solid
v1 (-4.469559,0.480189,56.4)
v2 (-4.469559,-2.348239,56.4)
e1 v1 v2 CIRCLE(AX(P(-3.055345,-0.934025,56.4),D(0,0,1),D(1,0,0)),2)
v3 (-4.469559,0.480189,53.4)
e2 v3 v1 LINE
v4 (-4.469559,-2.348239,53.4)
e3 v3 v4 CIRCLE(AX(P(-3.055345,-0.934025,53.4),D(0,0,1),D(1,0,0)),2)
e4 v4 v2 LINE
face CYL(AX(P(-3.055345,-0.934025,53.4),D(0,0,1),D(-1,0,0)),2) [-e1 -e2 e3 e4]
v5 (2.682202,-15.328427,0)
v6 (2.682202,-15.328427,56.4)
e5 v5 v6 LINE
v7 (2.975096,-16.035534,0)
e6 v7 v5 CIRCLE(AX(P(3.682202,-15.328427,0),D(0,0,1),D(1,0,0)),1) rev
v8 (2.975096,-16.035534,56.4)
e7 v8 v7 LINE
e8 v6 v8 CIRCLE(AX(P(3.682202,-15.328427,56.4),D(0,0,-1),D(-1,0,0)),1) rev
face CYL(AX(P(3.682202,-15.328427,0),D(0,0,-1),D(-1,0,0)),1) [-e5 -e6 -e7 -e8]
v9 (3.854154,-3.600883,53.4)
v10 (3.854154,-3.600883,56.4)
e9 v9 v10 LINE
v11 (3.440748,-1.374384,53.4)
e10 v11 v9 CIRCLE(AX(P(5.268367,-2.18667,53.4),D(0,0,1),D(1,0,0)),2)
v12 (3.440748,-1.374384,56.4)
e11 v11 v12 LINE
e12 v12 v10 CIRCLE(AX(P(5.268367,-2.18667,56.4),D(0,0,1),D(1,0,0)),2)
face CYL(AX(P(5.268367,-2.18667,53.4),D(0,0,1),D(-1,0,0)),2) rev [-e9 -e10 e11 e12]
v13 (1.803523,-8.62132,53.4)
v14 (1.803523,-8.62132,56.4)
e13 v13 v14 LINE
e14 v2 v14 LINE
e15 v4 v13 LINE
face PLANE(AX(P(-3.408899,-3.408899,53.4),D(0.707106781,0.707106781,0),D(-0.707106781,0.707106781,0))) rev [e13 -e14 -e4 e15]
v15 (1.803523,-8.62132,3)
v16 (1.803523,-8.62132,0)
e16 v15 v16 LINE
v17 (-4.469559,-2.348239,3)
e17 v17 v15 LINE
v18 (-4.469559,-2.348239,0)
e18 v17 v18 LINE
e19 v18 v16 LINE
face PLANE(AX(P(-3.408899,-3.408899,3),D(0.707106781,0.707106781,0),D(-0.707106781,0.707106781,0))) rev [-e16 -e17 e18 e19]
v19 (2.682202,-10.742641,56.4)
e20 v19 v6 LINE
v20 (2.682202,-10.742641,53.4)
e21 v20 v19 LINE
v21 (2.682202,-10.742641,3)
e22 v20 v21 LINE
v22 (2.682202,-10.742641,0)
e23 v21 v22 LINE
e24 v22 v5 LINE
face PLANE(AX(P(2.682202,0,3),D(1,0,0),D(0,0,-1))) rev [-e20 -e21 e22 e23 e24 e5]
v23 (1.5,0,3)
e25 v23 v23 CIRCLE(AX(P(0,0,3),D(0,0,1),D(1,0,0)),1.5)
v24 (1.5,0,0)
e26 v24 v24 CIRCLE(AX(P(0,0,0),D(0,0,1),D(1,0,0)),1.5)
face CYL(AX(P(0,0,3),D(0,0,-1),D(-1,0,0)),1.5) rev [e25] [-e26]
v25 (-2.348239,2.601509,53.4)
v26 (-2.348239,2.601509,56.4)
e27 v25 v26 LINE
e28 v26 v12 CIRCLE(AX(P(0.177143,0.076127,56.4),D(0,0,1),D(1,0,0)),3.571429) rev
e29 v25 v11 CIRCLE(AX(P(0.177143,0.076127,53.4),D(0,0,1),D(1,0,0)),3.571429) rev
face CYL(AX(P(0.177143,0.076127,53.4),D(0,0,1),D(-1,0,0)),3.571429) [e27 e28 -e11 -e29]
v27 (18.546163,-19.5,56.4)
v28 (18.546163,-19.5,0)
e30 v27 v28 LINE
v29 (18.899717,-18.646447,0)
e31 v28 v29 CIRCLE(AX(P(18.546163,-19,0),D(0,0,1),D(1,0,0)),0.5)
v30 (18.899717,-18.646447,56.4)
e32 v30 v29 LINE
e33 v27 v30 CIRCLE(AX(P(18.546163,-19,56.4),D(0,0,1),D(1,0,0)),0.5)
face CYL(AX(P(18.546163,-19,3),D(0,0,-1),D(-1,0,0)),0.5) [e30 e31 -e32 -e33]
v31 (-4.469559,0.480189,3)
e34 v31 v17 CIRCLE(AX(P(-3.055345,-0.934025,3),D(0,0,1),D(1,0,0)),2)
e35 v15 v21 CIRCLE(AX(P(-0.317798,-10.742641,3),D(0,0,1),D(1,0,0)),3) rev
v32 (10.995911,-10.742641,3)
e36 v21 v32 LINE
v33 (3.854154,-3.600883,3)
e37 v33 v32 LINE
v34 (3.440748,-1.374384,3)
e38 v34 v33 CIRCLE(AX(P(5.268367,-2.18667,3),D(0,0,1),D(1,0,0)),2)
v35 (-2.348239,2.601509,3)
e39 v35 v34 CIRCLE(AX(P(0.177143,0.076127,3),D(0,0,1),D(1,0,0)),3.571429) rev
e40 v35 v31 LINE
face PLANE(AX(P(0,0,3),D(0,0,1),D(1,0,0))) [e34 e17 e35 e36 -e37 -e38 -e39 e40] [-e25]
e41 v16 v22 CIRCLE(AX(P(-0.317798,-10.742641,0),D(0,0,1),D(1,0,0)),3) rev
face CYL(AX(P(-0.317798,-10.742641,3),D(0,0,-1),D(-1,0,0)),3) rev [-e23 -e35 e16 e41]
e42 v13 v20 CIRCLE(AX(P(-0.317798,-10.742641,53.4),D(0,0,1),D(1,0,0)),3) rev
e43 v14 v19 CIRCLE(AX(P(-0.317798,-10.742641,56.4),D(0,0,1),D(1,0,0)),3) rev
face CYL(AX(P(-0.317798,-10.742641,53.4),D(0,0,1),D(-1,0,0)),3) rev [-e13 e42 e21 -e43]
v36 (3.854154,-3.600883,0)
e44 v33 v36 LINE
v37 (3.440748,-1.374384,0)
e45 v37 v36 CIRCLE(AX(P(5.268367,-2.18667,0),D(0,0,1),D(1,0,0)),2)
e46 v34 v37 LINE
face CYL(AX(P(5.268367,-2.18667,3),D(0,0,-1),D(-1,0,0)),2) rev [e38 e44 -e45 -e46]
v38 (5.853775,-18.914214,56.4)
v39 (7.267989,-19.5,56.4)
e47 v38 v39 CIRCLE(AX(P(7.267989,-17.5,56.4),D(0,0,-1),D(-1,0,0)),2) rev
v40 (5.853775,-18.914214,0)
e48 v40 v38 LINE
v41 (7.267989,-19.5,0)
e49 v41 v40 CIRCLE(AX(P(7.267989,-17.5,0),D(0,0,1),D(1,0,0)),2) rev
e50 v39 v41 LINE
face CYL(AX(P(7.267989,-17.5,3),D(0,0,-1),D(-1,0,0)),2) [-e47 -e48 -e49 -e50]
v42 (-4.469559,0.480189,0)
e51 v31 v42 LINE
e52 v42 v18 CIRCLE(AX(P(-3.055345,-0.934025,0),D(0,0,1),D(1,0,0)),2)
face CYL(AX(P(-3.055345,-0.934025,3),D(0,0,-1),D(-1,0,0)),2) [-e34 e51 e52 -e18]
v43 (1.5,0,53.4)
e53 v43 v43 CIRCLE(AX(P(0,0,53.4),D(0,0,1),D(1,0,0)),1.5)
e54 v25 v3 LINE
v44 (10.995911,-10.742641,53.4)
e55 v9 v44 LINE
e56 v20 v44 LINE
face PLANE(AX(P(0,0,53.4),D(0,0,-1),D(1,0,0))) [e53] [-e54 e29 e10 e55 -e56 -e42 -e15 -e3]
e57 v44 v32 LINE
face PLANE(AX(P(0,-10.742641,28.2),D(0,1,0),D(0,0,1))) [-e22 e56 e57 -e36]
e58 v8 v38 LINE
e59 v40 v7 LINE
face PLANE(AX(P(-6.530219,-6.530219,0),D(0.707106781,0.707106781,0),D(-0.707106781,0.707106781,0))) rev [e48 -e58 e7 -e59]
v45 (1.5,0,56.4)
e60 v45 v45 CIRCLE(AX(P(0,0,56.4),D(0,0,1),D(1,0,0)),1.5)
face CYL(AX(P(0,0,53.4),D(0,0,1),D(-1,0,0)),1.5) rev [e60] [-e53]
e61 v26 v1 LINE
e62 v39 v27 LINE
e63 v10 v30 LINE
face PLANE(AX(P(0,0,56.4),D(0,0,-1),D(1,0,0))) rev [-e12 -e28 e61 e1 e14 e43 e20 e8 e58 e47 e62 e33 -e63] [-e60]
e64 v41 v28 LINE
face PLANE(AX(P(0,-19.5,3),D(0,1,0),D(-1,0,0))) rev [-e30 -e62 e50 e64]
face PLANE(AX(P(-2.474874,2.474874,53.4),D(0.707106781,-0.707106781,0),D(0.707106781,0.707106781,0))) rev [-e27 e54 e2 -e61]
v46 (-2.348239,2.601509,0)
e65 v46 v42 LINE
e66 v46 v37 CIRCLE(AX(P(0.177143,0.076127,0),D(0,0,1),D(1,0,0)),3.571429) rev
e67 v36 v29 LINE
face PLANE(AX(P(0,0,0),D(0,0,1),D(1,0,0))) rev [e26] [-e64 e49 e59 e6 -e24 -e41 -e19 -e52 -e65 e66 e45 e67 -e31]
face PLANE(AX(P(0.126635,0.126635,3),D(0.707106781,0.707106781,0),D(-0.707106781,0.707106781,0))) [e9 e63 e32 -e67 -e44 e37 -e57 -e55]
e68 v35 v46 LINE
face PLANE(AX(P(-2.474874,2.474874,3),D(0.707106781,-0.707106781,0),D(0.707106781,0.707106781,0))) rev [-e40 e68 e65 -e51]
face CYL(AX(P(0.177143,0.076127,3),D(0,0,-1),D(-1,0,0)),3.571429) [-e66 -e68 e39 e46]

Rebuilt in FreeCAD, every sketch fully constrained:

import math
import FreeCAD as App
import Part
import Sketcher
Q = App.Units.Quantity


def edges_at(feature, points):
    """Names of the edges that pass closest to the given points."""
    edges = feature.Shape.Edges
    near = lambda p: min(range(len(edges)), key=lambda i: edges[i].distToShape(Part.Vertex(*p))[0])
    return sorted({f"Edge{near(p) + 1}" for p in points})

doc = App.newDocument("Part")
params = doc.addObject("Spreadsheet::Sheet", "Params")
for row, (alias, value) in enumerate([
    ("sketch1_diameter", "3 mm"),
    ("sketch1_radius", "2 mm"),
    ("sketch1_radius2", "3 mm"),
    ("sketch1_radius3", "1 mm"),
    ("sketch1_radius4", "0.5 mm"),
    ("pad1_length", "3 mm"),
    ("sketch2_radius", "1 mm"),
    ("sketch2_radius2", "0.5 mm"),
    ("pad2_length", "25.2 mm"),
    ("fillet_radius", "2 mm"),
    ("fillet2_radius", "1 mm"),
], start=1):
    params.set(f"A{row}", alias)
    params.set(f"B{row}", "=" + value)
    params.setAlias(f"B{row}", alias)

body = doc.addObject("PartDesign::Body", "Body")

# Sketch on XY plane
sketch1 = doc.addObject("Sketcher::SketchObject", "Sketch")
body.addObject(sketch1)
sketch1.AttachmentSupport = (doc.XY_Plane, [""])
sketch1.MapMode = "FlatFace"
sketch1.addGeometry([
    Part.LineSegment(App.Vector(3.7, -19.5, 0), App.Vector(18.5, -19.5, 0)),  # 0
    Part.ArcOfCircle(Part.Circle(App.Vector(18.5, -19, 0), App.Vector(0, 0, 1), 0.5), math.radians(-90), math.radians(45)),  # 1
    Part.LineSegment(App.Vector(18.9, -18.6, 0), App.Vector(3.9, -3.6, 0)),  # 2
    Part.ArcOfCircle(Part.Circle(App.Vector(5.3, -2.2, 0), App.Vector(0, 0, 1), 2), math.radians(156), math.radians(225)),  # 3
    Part.ArcOfCircle(Part.Circle(App.Vector(0.2, 0.1, 0), App.Vector(0, 0, 1), 3.6), math.radians(-24), math.radians(135)),  # 4
    Part.LineSegment(App.Vector(-2.3, 2.6, 0), App.Vector(-4.5, 0.5, 0)),  # 5
    Part.ArcOfCircle(Part.Circle(App.Vector(-3.1, -0.9, 0), App.Vector(0, 0, 1), 2), math.radians(135), math.radians(225)),  # 6
    Part.LineSegment(App.Vector(-4.5, -2.3, 0), App.Vector(1.8, -8.6, 0)),  # 7
    Part.ArcOfCircle(Part.Circle(App.Vector(-0.3, -10.7, 0), App.Vector(0, 0, 1), 3), math.radians(0), math.radians(45)),  # 8
    Part.LineSegment(App.Vector(2.7, -10.7, 0), App.Vector(2.7, -18.5, 0)),  # 9
    Part.ArcOfCircle(Part.Circle(App.Vector(3.7, -18.5, 0), App.Vector(0, 0, 1), 1), math.radians(-180), math.radians(-90)),  # 10
    Part.Circle(App.Vector(0, 0, 0), App.Vector(0, 0, 1), 1.5),  # 11
], False)
sketch1.addConstraint([
    Sketcher.Constraint("Tangent", 0, 2, 1, 1),
    Sketcher.Constraint("Tangent", 1, 2, 2, 1),
    Sketcher.Constraint("Tangent", 2, 2, 3, 2),
    Sketcher.Constraint("Tangent", 3, 1, 4, 1),
    Sketcher.Constraint("Tangent", 4, 2, 5, 1),
    Sketcher.Constraint("Tangent", 5, 2, 6, 1),
    Sketcher.Constraint("Tangent", 6, 2, 7, 1),
    Sketcher.Constraint("Tangent", 7, 2, 8, 2),
    Sketcher.Constraint("Tangent", 8, 1, 9, 1),
    Sketcher.Constraint("Tangent", 9, 2, 10, 1),
    Sketcher.Constraint("Tangent", 10, 2, 0, 1),
    Sketcher.Constraint("Horizontal", 0),
    Sketcher.Constraint("Vertical", 9),
    Sketcher.Constraint("Coincident", 11, 3, -1, 1),
    Sketcher.Constraint("Equal", 3, 6),
    Sketcher.Constraint("Perpendicular", 2, 5),
    Sketcher.Constraint("Perpendicular", 5, 7),
    Sketcher.Constraint("Vertical", 5, 2, 6, 2),
    Sketcher.Constraint("Diameter", 11, 3.0),
    Sketcher.Constraint("Radius", 3, 2.0),
    Sketcher.Constraint("Radius", 8, 3.0),
    Sketcher.Constraint("Radius", 10, 1.0),
    Sketcher.Constraint("Radius", 1, 0.5),
    Sketcher.Constraint("Distance", 5, 3.0),
    Sketcher.Constraint("DistanceY", 1, 3, -1, 1, 19.0),
    Sketcher.Constraint("Radius", 4, 3.571429),
    Sketcher.Constraint("DistanceX", 0, 1, 0, 2, 14.863961),
    Sketcher.Constraint("DistanceY", 9, 2, 9, 1, 7.757359),
    Sketcher.Constraint("Distance", 2, 21.27764),
    Sketcher.Constraint("DistanceX", -1, 1, 3, 1, 3.440748),
])
sketch1.setExpression("Constraints[18]", "Params.sketch1_diameter")
sketch1.setExpression("Constraints[19]", "Params.sketch1_radius")
sketch1.setExpression("Constraints[20]", "Params.sketch1_radius2")
sketch1.setExpression("Constraints[21]", "Params.sketch1_radius3")
sketch1.setExpression("Constraints[22]", "Params.sketch1_radius4")
pad1 = doc.addObject("PartDesign::Pad", "Pad")
body.addObject(pad1)
pad1.Profile = sketch1
pad1.setExpression("Length", "Params.pad1_length")

# Sketch on XY plane
sketch2 = doc.addObject("Sketcher::SketchObject", "Sketch001")
body.addObject(sketch2)
sketch2.AttachmentSupport = (doc.XY_Plane, [""])
sketch2.MapMode = "FlatFace"
sketch2.AttachmentOffset = App.Placement(App.Vector(0, 0, 3), App.Rotation())
sketch2.addGeometry([
    Part.LineSegment(App.Vector(18.9, -18.6, 0), App.Vector(11, -10.7, 0)),  # 0
    Part.LineSegment(App.Vector(11, -10.7, 0), App.Vector(2.7, -10.7, 0)),  # 1
    Part.LineSegment(App.Vector(2.7, -10.7, 0), App.Vector(2.7, -18.5, 0)),  # 2
    Part.ArcOfCircle(Part.Circle(App.Vector(3.7, -18.5, 0), App.Vector(0, 0, 1), 1), math.radians(-180), math.radians(-90)),  # 3
    Part.LineSegment(App.Vector(3.7, -19.5, 0), App.Vector(18.5, -19.5, 0)),  # 4
    Part.ArcOfCircle(Part.Circle(App.Vector(18.5, -19, 0), App.Vector(0, 0, 1), 0.5), math.radians(-90), math.radians(45)),  # 5
], False)
sketch2.addConstraint([
    Sketcher.Constraint("Coincident", 0, 2, 1, 1),
    Sketcher.Constraint("Coincident", 1, 2, 2, 1),
    Sketcher.Constraint("Tangent", 2, 2, 3, 1),
    Sketcher.Constraint("Tangent", 3, 2, 4, 1),
    Sketcher.Constraint("Tangent", 4, 2, 5, 1),
    Sketcher.Constraint("Tangent", 5, 2, 0, 1),
    Sketcher.Constraint("Horizontal", 1),
    Sketcher.Constraint("Vertical", 2),
    Sketcher.Constraint("Horizontal", 4),
    Sketcher.Constraint("Radius", 3, 1.0),
    Sketcher.Constraint("Radius", 5, 0.5),
    Sketcher.Constraint("Angle", 0, Q("135 deg")),
    Sketcher.Constraint("DistanceY", 5, 3, -1, 1, 19.0),
    Sketcher.Constraint("DistanceX", 1, 2, 1, 1, 8.313708),
    Sketcher.Constraint("DistanceX", 4, 1, 4, 2, 14.863961),
    Sketcher.Constraint("DistanceX", -1, 1, 0, 2, 10.995911),
])
sketch2.setExpression("Constraints[9]", "Params.sketch2_radius")
sketch2.setExpression("Constraints[10]", "Params.sketch2_radius2")
pad2 = doc.addObject("PartDesign::Pad", "Pad001")
body.addObject(pad2)
pad2.Profile = sketch2
pad2.setExpression("Length", "Params.pad2_length")
doc.recompute()

datumplane = doc.addObject("PartDesign::Plane", "DatumPlane")
body.addObject(datumplane)
datumplane.AttachmentSupport = (doc.XY_Plane, [""])
datumplane.MapMode = "FlatFace"
datumplane.AttachmentOffset = App.Placement(App.Vector(0, 0, 28.2), App.Rotation())
mirrored = doc.addObject("PartDesign::Mirrored", "Mirrored")
body.addObject(mirrored)
mirrored.Originals = [pad1, pad2]
mirrored.MirrorPlane = (datumplane, [""])
body.Tip = mirrored

# Sketch on an angled plane
sketch3 = doc.addObject("Sketcher::SketchObject", "Sketch002")
body.addObject(sketch3)
sketch3.Placement = App.Placement(App.Vector(-6.530219, -6.530219, 0), App.Rotation(App.Vector(0, 0, 1), App.Vector(-0.707106781, 0.707106781, 0), App.Vector(-0.707106781, -0.707106781, 0), "ZXY"))
sketch3.addGeometry([
    Part.LineSegment(App.Vector(-1, -13, 0), App.Vector(-1, -22, 0)),
    Part.LineSegment(App.Vector(-1, -22, 0), App.Vector(56, -22, 0)),
    Part.LineSegment(App.Vector(56, -22, 0), App.Vector(56, -13, 0)),
    Part.LineSegment(App.Vector(56, -13, 0), App.Vector(-1, -13, 0)),
], False)
sketch3.addConstraint([
    Sketcher.Constraint("Coincident", 0, 2, 1, 1),
    Sketcher.Constraint("Coincident", 1, 2, 2, 1),
    Sketcher.Constraint("Coincident", 2, 2, 3, 1),
    Sketcher.Constraint("Coincident", 3, 2, 0, 1),
    Sketcher.Constraint("Vertical", 0),
    Sketcher.Constraint("Horizontal", 1),
    Sketcher.Constraint("Vertical", 2),
    Sketcher.Constraint("Horizontal", 3),
    Sketcher.Constraint("DistanceX", -1, 1, 1, 2, 56.4),
    Sketcher.Constraint("DistanceX", 1, 1, 1, 2, 57.53659),
    Sketcher.Constraint("DistanceY", 0, 2, 0, 1, 9.115473),
    Sketcher.Constraint("DistanceY", 2, 2, -1, 1, 13.028331),
])
pocket1 = doc.addObject("PartDesign::Pocket", "Pocket")
body.addObject(pocket1)
pocket1.Profile = sketch3
pocket1.Type = "ThroughAll"
pocket1.Reversed = True
doc.recompute()

fillet = doc.addObject("PartDesign::Fillet", "Fillet")
body.addObject(fillet)
fillet.Base = (pocket1, edges_at(pocket1, [(6.44, -19.5, 28.2)]))
fillet.setExpression("Radius", "Params.fillet_radius")
doc.recompute()

fillet2 = doc.addObject("PartDesign::Fillet", "Fillet001")
body.addObject(fillet2)
fillet2.Base = (fillet, edges_at(fillet, [(2.682, -15.743, 28.2)]))
fillet2.setExpression("Radius", "Params.fillet2_radius")

doc.recompute()
